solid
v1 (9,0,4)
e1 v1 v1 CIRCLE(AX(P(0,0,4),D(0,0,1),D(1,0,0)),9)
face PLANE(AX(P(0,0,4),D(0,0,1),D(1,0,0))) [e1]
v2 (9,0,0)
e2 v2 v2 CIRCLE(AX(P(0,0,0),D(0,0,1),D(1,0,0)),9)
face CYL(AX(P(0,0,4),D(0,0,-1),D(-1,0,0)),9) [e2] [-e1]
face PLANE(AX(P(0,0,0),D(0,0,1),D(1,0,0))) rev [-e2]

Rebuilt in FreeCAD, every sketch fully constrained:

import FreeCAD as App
import Part
import Sketcher
Q = App.Units.Quantity

doc = App.newDocument("Part")
body = doc.addObject("PartDesign::Body", "Body")

# Sketch on XY plane
sketch1 = body.newObject("Sketcher::SketchObject", "Sketch")
sketch1.AttachmentSupport = (doc.getObject("XY_Plane"), [""])
sketch1.MapMode = "FlatFace"
sketch1.addGeometry(Part.Circle(App.Vector(0, 0, 0), App.Vector(0, 0, 1), 9), False)
sketch1.addConstraint(Sketcher.Constraint("Coincident", 0, 3, -1, 1))
sketch1.addConstraint(Sketcher.Constraint("Diameter", 0, Q("18 mm")))
pad1 = body.newObject("PartDesign::Pad", "Pad")
pad1.Profile = sketch1
pad1.Length = 4

doc.recompute()
